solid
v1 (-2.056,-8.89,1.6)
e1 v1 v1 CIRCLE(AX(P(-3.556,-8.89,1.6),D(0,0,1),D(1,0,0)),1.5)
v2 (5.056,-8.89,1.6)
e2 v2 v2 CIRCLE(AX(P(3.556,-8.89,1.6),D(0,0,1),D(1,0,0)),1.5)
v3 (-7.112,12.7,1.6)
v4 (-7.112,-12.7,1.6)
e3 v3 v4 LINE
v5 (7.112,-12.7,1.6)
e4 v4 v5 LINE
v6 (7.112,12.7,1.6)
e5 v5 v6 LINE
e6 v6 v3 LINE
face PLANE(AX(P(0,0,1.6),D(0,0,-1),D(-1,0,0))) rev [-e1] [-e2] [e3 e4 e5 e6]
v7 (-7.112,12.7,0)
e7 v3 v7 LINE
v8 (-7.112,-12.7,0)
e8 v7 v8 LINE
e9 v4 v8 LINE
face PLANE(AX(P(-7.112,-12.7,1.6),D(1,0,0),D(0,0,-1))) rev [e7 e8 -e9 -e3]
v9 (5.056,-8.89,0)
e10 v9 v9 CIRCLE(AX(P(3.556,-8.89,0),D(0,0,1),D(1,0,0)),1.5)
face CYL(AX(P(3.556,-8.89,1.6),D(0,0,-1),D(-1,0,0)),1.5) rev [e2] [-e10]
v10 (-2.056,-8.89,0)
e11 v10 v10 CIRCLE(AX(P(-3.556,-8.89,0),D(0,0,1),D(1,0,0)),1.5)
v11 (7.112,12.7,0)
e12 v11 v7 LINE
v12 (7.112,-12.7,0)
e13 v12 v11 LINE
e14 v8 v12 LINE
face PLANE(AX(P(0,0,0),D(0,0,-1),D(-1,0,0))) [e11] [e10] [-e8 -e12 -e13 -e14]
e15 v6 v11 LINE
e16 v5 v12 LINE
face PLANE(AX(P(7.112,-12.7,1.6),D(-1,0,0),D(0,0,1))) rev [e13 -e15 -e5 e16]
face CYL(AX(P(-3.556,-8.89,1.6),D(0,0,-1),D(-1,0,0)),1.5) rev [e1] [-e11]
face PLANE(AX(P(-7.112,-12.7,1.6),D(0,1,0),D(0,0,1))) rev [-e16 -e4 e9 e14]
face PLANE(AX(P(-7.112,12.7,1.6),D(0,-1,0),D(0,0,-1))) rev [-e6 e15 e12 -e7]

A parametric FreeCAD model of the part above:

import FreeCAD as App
import Part
import Sketcher

V = App.Vector
Q = App.Units.Quantity

doc = App.newDocument("Part")
params = doc.addObject("Spreadsheet::Sheet", "Params")
for row, (alias, value) in enumerate([
    ("sketch1_diameter", "3 mm"),
    ("sketch1_height", "25.4 mm"),
    ("pad1_length", "1.6 mm"),
], start=1):
    params.set(f"A{row}", alias)
    params.set(f"B{row}", "=" + value)
    params.setAlias(f"B{row}", alias)

body = doc.addObject("PartDesign::Body", "Body")

# Sketch on XY plane
sketch1 = body.newObject("Sketcher::SketchObject", "Sketch")
sketch1.AttachmentSupport = (doc.getObject("XY_Plane"), [""])
sketch1.MapMode = "FlatFace"
sketch1.addGeometry(Part.LineSegment(V(-7.1, 12.7, 0), V(-7.1, -12.7, 0)), False)
sketch1.addGeometry(Part.LineSegment(V(-7.1, -12.7, 0), V(7.1, -12.7, 0)), False)
sketch1.addGeometry(Part.LineSegment(V(7.1, -12.7, 0), V(7.1, 12.7, 0)), False)
sketch1.addGeometry(Part.LineSegment(V(7.1, 12.7, 0), V(-7.1, 12.7, 0)), False)
sketch1.addGeometry(Part.Circle(V(-3.6, -8.9, 0), V(0, 0, 1), 1.5), False)
sketch1.addGeometry(Part.Circle(V(3.6, -8.9, 0), V(0, 0, 1), 1.5), False)
sketch1.addConstraint(Sketcher.Constraint("Coincident", 0, 2, 1, 1))
sketch1.addConstraint(Sketcher.Constraint("Coincident", 1, 2, 2, 1))
sketch1.addConstraint(Sketcher.Constraint("Coincident", 2, 2, 3, 1))
sketch1.addConstraint(Sketcher.Constraint("Coincident", 3, 2, 0, 1))
sketch1.addConstraint(Sketcher.Constraint("Vertical", 0))
sketch1.addConstraint(Sketcher.Constraint("Horizontal", 1))
sketch1.addConstraint(Sketcher.Constraint("Vertical", 2))
sketch1.addConstraint(Sketcher.Constraint("Horizontal", 3))
sketch1.addConstraint(Sketcher.Constraint("Equal", 4, 5))
sketch1.addConstraint(Sketcher.Constraint("Symmetric", 0, 2, 2, 2, -1, 1))
sketch1.addConstraint(Sketcher.Constraint("Symmetric", 4, 3, 5, 3, -2))
sketch1.addConstraint(Sketcher.Constraint("Diameter", 4, Q("3 mm")))
sketch1.addConstraint(Sketcher.Constraint("DistanceY", 0, 2, 0, 1, Q("25.4 mm")))
sketch1.addConstraint(Sketcher.Constraint("DistanceX", 1, 1, 1, 2, Q("14.224 mm")))
sketch1.addConstraint(Sketcher.Constraint("DistanceY", 4, 3, -1, 1, Q("8.89 mm")))
sketch1.addConstraint(Sketcher.Constraint("DistanceX", 4, 3, -1, 1, Q("3.556 mm")))
sketch1.setExpression("Constraints[11]", "Params.sketch1_diameter")
sketch1.setExpression("Constraints[12]", "Params.sketch1_height")
pad1 = body.newObject("PartDesign::Pad", "Pad")
pad1.Profile = sketch1
pad1.setExpression("Length", "Params.pad1_length")

doc.recompute()
